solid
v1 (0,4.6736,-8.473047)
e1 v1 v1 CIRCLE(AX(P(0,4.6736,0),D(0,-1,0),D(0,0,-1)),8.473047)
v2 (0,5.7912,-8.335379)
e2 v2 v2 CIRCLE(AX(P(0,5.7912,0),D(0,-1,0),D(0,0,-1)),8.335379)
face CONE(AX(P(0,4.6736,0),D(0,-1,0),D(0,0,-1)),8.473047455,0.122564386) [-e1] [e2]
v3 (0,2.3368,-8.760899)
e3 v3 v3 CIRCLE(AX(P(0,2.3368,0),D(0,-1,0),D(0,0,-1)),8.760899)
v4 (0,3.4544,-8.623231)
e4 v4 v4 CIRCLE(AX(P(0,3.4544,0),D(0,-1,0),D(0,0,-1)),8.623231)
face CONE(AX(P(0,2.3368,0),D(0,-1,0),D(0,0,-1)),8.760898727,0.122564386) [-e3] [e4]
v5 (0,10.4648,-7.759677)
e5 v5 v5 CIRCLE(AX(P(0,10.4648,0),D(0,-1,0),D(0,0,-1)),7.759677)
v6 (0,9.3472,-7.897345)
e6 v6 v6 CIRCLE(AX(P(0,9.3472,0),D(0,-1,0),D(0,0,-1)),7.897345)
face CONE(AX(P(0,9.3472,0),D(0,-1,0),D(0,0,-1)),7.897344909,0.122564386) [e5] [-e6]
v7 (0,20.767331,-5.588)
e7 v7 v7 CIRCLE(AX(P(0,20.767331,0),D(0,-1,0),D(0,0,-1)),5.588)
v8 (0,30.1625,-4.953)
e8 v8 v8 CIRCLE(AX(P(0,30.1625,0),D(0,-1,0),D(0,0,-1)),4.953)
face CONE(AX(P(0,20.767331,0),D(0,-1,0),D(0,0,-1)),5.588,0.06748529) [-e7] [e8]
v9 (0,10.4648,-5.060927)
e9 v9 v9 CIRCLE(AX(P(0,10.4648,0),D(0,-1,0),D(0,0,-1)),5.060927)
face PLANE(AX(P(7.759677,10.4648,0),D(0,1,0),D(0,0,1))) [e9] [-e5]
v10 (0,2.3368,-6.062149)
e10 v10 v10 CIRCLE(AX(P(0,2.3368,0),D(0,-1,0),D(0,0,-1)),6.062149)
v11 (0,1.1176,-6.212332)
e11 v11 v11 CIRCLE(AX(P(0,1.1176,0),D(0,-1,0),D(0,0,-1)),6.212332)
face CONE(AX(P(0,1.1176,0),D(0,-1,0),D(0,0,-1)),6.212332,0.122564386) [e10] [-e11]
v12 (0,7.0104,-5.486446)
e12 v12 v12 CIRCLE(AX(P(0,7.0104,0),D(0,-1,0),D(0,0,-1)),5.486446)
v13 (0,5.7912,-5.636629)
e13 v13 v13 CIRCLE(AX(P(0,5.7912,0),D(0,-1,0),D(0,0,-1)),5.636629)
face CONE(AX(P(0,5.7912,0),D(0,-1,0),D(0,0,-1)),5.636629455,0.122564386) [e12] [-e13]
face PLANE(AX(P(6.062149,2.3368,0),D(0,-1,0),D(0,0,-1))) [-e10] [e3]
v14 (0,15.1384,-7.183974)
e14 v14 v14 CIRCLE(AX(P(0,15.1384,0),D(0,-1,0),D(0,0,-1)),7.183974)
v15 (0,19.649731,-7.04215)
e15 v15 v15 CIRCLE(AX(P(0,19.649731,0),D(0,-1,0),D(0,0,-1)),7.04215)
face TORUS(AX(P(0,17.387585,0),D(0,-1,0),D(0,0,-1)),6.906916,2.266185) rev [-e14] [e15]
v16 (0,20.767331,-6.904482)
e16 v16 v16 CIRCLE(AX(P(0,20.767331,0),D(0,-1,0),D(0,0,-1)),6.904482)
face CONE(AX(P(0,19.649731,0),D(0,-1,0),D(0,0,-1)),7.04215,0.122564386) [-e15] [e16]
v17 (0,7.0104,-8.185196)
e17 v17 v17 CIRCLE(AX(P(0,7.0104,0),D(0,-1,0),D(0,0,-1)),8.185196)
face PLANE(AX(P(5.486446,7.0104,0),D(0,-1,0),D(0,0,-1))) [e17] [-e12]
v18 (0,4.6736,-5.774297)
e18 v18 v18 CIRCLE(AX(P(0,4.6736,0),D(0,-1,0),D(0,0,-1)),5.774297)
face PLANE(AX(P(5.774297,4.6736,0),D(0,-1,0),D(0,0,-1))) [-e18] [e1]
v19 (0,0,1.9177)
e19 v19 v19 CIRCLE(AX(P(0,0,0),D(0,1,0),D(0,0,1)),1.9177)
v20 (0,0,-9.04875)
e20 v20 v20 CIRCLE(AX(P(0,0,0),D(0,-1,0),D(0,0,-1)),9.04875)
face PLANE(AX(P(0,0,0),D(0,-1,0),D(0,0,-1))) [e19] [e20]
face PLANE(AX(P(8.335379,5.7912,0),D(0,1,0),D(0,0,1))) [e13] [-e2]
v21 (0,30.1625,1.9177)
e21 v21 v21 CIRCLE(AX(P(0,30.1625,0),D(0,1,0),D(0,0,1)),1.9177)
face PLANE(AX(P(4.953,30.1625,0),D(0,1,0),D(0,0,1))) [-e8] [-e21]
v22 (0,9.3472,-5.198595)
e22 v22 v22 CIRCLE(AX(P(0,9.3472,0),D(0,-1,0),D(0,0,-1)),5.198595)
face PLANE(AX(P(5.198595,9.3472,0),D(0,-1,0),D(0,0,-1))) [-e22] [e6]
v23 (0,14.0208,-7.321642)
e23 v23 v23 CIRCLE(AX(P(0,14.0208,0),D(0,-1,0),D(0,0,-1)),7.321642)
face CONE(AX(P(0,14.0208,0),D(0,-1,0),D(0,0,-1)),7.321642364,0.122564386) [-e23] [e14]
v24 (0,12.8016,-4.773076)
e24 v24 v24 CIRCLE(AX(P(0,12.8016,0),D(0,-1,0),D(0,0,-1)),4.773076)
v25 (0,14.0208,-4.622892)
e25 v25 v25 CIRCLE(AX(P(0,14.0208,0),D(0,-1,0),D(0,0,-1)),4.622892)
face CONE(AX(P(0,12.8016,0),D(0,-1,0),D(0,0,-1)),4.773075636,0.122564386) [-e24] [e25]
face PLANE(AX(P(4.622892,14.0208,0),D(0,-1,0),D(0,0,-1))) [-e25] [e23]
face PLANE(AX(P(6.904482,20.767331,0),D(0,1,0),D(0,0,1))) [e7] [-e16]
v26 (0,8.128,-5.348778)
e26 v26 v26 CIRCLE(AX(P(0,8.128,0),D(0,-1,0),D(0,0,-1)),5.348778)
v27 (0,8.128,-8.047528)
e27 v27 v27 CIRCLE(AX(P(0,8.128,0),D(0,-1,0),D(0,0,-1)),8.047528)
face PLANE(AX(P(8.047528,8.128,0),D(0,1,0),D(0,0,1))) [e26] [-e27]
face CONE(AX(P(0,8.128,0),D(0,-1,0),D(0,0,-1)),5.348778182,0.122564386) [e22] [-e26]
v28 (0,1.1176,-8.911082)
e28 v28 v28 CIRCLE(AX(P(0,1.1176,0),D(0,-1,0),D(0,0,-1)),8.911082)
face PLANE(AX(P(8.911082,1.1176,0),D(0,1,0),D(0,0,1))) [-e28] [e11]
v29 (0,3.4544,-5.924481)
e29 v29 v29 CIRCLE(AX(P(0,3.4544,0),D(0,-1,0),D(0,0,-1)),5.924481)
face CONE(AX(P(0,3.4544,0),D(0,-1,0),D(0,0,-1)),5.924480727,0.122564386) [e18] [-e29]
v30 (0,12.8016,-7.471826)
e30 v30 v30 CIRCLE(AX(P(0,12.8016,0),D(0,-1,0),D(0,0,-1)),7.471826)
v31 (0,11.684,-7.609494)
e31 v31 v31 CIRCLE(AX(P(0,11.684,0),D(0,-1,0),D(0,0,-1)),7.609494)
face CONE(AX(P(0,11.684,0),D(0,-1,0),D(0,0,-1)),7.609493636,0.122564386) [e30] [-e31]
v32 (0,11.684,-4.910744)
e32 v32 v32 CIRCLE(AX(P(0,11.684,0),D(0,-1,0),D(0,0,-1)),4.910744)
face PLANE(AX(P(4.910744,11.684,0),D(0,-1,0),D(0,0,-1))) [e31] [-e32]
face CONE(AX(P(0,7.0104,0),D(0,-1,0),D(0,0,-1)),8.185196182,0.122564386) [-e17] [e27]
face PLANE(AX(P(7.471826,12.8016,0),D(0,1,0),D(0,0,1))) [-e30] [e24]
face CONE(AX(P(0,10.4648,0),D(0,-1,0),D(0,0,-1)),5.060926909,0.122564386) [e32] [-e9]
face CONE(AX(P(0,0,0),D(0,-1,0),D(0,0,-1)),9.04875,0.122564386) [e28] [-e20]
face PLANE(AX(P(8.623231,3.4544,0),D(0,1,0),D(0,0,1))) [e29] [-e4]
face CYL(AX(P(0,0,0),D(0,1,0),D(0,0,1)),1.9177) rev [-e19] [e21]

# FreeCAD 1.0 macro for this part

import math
import FreeCAD as App
import Part
import Sketcher
from FreeCAD import Vector
Q = App.Units.Quantity

doc = App.newDocument("Part")
body = doc.addObject("PartDesign::Body", "Body")

sketch1 = body.newObject("Sketcher::SketchObject", "Sketch")
sketch1.AttachmentSupport = (doc.getObject("XY_Plane"), [""])
sketch1.MapMode = "FlatFace"
sketch1.addGeometry([
    Part.LineSegment(Vector(0, 30.1625, 0), Vector(0, 0, 0)),
    Part.LineSegment(Vector(0, 0, 0), Vector(9.04875, 0, 0)),
    Part.LineSegment(Vector(9.04875, 0, 0), Vector(8.911082, 1.1176, 0)),
    Part.LineSegment(Vector(8.911082, 1.1176, 0), Vector(6.212332, 1.1176, 0)),
    Part.LineSegment(Vector(6.212332, 1.1176, 0), Vector(6.062149, 2.3368, 0)),
    Part.LineSegment(Vector(6.062149, 2.3368, 0), Vector(8.760899, 2.3368, 0)),
    Part.LineSegment(Vector(8.760899, 2.3368, 0), Vector(8.623231, 3.4544, 0)),
    Part.LineSegment(Vector(8.623231, 3.4544, 0), Vector(5.924481, 3.4544, 0)),
    Part.LineSegment(Vector(5.924481, 3.4544, 0), Vector(5.774297, 4.6736, 0)),
    Part.LineSegment(Vector(5.774297, 4.6736, 0), Vector(8.473047, 4.6736, 0)),
    Part.LineSegment(Vector(8.473047, 4.6736, 0), Vector(8.335379, 5.7912, 0)),
    Part.LineSegment(Vector(8.335379, 5.7912, 0), Vector(5.636629, 5.7912, 0)),
    Part.LineSegment(Vector(5.636629, 5.7912, 0), Vector(5.486446, 7.0104, 0)),
    Part.LineSegment(Vector(5.486446, 7.0104, 0), Vector(8.185196, 7.0104, 0)),
    Part.LineSegment(Vector(8.185196, 7.0104, 0), Vector(8.047528, 8.128, 0)),
    Part.LineSegment(Vector(8.047528, 8.128, 0), Vector(5.348778, 8.128, 0)),
    Part.LineSegment(Vector(5.348778, 8.128, 0), Vector(5.198595, 9.3472, 0)),
    Part.LineSegment(Vector(5.198595, 9.3472, 0), Vector(7.897345, 9.3472, 0)),
    Part.LineSegment(Vector(7.897345, 9.3472, 0), Vector(7.759677, 10.4648, 0)),
    Part.LineSegment(Vector(7.759677, 10.4648, 0), Vector(5.060927, 10.4648, 0)),
    Part.LineSegment(Vector(5.060927, 10.4648, 0), Vector(4.910744, 11.684, 0)),
    Part.LineSegment(Vector(4.910744, 11.684, 0), Vector(7.609494, 11.684, 0)),
    Part.LineSegment(Vector(7.609494, 11.684, 0), Vector(7.471826, 12.8016, 0)),
    Part.LineSegment(Vector(7.471826, 12.8016, 0), Vector(4.773076, 12.8016, 0)),
    Part.LineSegment(Vector(4.773076, 12.8016, 0), Vector(4.622892, 14.0208, 0)),
    Part.LineSegment(Vector(4.622892, 14.0208, 0), Vector(7.321642, 14.0208, 0)),
    Part.LineSegment(Vector(7.321642, 14.0208, 0), Vector(7.183974, 15.1384, 0)),
    Part.ArcOfCircle(Part.Circle(Vector(6.906916, 17.387585, 0), Vector(0, 0, 1), 2.266185), math.radians(86.578849), math.radians(277.022422)),
    Part.LineSegment(Vector(7.04215, 19.649731, 0), Vector(6.904482, 20.767331, 0)),
    Part.LineSegment(Vector(6.904482, 20.767331, 0), Vector(5.588, 20.767331, 0)),
    Part.LineSegment(Vector(5.588, 20.767331, 0), Vector(4.953, 30.1625, 0)),
    Part.LineSegment(Vector(4.953, 30.1625, 0), Vector(0, 30.1625, 0)),
], False)
sketch1.addConstraint([
    Sketcher.Constraint("Coincident", 0, 2, 1, 1),
    Sketcher.Constraint("Coincident", 1, 2, 2, 1),
    Sketcher.Constraint("Coincident", 2, 2, 3, 1),
    Sketcher.Constraint("Coincident", 3, 2, 4, 1),
    Sketcher.Constraint("Coincident", 4, 2, 5, 1),
    Sketcher.Constraint("Coincident", 5, 2, 6, 1),
    Sketcher.Constraint("Coincident", 6, 2, 7, 1),
    Sketcher.Constraint("Coincident", 7, 2, 8, 1),
    Sketcher.Constraint("Coincident", 8, 2, 9, 1),
    Sketcher.Constraint("Coincident", 9, 2, 10, 1),
    Sketcher.Constraint("Coincident", 10, 2, 11, 1),
    Sketcher.Constraint("Coincident", 11, 2, 12, 1),
    Sketcher.Constraint("Coincident", 12, 2, 13, 1),
    Sketcher.Constraint("Coincident", 13, 2, 14, 1),
    Sketcher.Constraint("Coincident", 14, 2, 15, 1),
    Sketcher.Constraint("Coincident", 15, 2, 16, 1),
    Sketcher.Constraint("Coincident", 16, 2, 17, 1),
    Sketcher.Constraint("Coincident", 17, 2, 18, 1),
    Sketcher.Constraint("Coincident", 18, 2, 19, 1),
    Sketcher.Constraint("Coincident", 19, 2, 20, 1),
    Sketcher.Constraint("Coincident", 20, 2, 21, 1),
    Sketcher.Constraint("Coincident", 21, 2, 22, 1),
    Sketcher.Constraint("Coincident", 22, 2, 23, 1),
    Sketcher.Constraint("Coincident", 23, 2, 24, 1),
    Sketcher.Constraint("Coincident", 24, 2, 25, 1),
    Sketcher.Constraint("Coincident", 25, 2, 26, 1),
    Sketcher.Constraint("Coincident", 26, 2, 27, 2),
    Sketcher.Constraint("Coincident", 27, 1, 28, 1),
    Sketcher.Constraint("Coincident", 28, 2, 29, 1),
    Sketcher.Constraint("Coincident", 29, 2, 30, 1),
    Sketcher.Constraint("Coincident", 30, 2, 31, 1),
    Sketcher.Constraint("Coincident", 31, 2, 0, 1),
    Sketcher.Constraint("Vertical", 0),
    Sketcher.Constraint("Horizontal", 1),
    Sketcher.Constraint("Horizontal", 3),
    Sketcher.Constraint("Horizontal", 5),
    Sketcher.Constraint("Horizontal", 7),
    Sketcher.Constraint("Horizontal", 9),
    Sketcher.Constraint("Horizontal", 11),
    Sketcher.Constraint("Horizontal", 13),
    Sketcher.Constraint("Horizontal", 15),
    Sketcher.Constraint("Horizontal", 17),
    Sketcher.Constraint("Horizontal", 19),
    Sketcher.Constraint("Horizontal", 21),
    Sketcher.Constraint("Horizontal", 23),
    Sketcher.Constraint("Horizontal", 25),
    Sketcher.Constraint("Horizontal", 29),
    Sketcher.Constraint("Horizontal", 31),
    Sketcher.Constraint("Coincident", 0, 2, -1, 1),
    Sketcher.Constraint("Parallel", 2, 4),
    Sketcher.Constraint("Parallel", 4, 6),
    Sketcher.Constraint("Parallel", 6, 8),
    Sketcher.Constraint("Parallel", 8, 10),
    Sketcher.Constraint("Parallel", 10, 12),
    Sketcher.Constraint("Parallel", 12, 14),
    Sketcher.Constraint("Parallel", 14, 16),
    Sketcher.Constraint("Parallel", 16, 18),
    Sketcher.Constraint("Parallel", 18, 20),
    Sketcher.Constraint("Parallel", 20, 22),
    Sketcher.Constraint("Parallel", 22, 24),
    Sketcher.Constraint("Parallel", 24, 26),
    Sketcher.Constraint("Parallel", 26, 28),
    Sketcher.Constraint("Equal", 3, 5),
    Sketcher.Constraint("Equal", 5, 7),
    Sketcher.Constraint("Equal", 7, 9),
    Sketcher.Constraint("Equal", 9, 11),
    Sketcher.Constraint("Equal", 11, 13),
    Sketcher.Constraint("Equal", 13, 15),
    Sketcher.Constraint("Equal", 15, 17),
    Sketcher.Constraint("Equal", 17, 19),
    Sketcher.Constraint("Equal", 19, 21),
    Sketcher.Constraint("Equal", 21, 23),
    Sketcher.Constraint("Equal", 23, 25),
    Sketcher.Constraint("Equal", 2, 6),
    Sketcher.Constraint("Equal", 4, 8),
    Sketcher.Constraint("Equal", 6, 10),
    Sketcher.Constraint("Equal", 8, 12),
    Sketcher.Constraint("Equal", 10, 14),
    Sketcher.Constraint("Equal", 12, 16),
    Sketcher.Constraint("Equal", 14, 18),
    Sketcher.Constraint("Equal", 16, 20),
    Sketcher.Constraint("Equal", 18, 22),
    Sketcher.Constraint("Equal", 20, 24),
    Sketcher.Constraint("Equal", 22, 26),
    Sketcher.Constraint("Equal", 26, 28),
    Sketcher.Constraint("DistanceX", 31, 2, 31, 1, Q("0.195 in")),
    Sketcher.Constraint("DistanceY", 0, 2, 0, 1, Q("1.1875 in")),
    Sketcher.Constraint("DistanceY", -1, 1, 14, 2, Q("0.32 in")),
    Sketcher.Constraint("DistanceY", -1, 1, 20, 2, Q("0.46 in")),
    Sketcher.Constraint("DistanceX", -1, 1, 29, 2, Q("0.22 in")),
    Sketcher.Constraint("Radius", 27, Q("2.266185 mm")),
    Sketcher.Constraint("DistanceX", 1, 1, 1, 2, Q("9.04875 mm")),
    Sketcher.Constraint("DistanceX", 3, 2, 3, 1, Q("2.69875 mm")),
    Sketcher.Constraint("DistanceX", 29, 2, 29, 1, Q("1.316482 mm")),
    Sketcher.Constraint("DistanceX", -1, 1, 5, 2, Q("8.760899 mm")),
    Sketcher.Constraint("DistanceY", -1, 1, 27, 1, Q("19.649731 mm")),
])
revolution = body.newObject("PartDesign::Revolution", "Revolution")
revolution.Profile = sketch1
revolution.ReferenceAxis = (sketch1, ["V_Axis"])
revolution.Angle = 360

sketch2 = body.newObject("Sketcher::SketchObject", "Sketch001")
sketch2.AttachmentSupport = (doc.getObject("XZ_Plane"), [""])
sketch2.MapMode = "FlatFace"
sketch2.AttachmentOffset = App.Placement(Vector(0, 0, -1.1875 * 25.4), App.Rotation())
sketch2.addGeometry(Part.Circle(Vector(0, 0, 0), Vector(0, 0, 1), 1.9177), False)
sketch2.addConstraint([
    Sketcher.Constraint("Coincident", 0, 3, -1, 1),
    Sketcher.Constraint("Diameter", 0, Q("0.151 in")),
])
pocket1 = body.newObject("PartDesign::Pocket", "Pocket")
pocket1.Profile = sketch2
pocket1.Type = "ThroughAll"
pocket1.Reversed = True

doc.recompute()
